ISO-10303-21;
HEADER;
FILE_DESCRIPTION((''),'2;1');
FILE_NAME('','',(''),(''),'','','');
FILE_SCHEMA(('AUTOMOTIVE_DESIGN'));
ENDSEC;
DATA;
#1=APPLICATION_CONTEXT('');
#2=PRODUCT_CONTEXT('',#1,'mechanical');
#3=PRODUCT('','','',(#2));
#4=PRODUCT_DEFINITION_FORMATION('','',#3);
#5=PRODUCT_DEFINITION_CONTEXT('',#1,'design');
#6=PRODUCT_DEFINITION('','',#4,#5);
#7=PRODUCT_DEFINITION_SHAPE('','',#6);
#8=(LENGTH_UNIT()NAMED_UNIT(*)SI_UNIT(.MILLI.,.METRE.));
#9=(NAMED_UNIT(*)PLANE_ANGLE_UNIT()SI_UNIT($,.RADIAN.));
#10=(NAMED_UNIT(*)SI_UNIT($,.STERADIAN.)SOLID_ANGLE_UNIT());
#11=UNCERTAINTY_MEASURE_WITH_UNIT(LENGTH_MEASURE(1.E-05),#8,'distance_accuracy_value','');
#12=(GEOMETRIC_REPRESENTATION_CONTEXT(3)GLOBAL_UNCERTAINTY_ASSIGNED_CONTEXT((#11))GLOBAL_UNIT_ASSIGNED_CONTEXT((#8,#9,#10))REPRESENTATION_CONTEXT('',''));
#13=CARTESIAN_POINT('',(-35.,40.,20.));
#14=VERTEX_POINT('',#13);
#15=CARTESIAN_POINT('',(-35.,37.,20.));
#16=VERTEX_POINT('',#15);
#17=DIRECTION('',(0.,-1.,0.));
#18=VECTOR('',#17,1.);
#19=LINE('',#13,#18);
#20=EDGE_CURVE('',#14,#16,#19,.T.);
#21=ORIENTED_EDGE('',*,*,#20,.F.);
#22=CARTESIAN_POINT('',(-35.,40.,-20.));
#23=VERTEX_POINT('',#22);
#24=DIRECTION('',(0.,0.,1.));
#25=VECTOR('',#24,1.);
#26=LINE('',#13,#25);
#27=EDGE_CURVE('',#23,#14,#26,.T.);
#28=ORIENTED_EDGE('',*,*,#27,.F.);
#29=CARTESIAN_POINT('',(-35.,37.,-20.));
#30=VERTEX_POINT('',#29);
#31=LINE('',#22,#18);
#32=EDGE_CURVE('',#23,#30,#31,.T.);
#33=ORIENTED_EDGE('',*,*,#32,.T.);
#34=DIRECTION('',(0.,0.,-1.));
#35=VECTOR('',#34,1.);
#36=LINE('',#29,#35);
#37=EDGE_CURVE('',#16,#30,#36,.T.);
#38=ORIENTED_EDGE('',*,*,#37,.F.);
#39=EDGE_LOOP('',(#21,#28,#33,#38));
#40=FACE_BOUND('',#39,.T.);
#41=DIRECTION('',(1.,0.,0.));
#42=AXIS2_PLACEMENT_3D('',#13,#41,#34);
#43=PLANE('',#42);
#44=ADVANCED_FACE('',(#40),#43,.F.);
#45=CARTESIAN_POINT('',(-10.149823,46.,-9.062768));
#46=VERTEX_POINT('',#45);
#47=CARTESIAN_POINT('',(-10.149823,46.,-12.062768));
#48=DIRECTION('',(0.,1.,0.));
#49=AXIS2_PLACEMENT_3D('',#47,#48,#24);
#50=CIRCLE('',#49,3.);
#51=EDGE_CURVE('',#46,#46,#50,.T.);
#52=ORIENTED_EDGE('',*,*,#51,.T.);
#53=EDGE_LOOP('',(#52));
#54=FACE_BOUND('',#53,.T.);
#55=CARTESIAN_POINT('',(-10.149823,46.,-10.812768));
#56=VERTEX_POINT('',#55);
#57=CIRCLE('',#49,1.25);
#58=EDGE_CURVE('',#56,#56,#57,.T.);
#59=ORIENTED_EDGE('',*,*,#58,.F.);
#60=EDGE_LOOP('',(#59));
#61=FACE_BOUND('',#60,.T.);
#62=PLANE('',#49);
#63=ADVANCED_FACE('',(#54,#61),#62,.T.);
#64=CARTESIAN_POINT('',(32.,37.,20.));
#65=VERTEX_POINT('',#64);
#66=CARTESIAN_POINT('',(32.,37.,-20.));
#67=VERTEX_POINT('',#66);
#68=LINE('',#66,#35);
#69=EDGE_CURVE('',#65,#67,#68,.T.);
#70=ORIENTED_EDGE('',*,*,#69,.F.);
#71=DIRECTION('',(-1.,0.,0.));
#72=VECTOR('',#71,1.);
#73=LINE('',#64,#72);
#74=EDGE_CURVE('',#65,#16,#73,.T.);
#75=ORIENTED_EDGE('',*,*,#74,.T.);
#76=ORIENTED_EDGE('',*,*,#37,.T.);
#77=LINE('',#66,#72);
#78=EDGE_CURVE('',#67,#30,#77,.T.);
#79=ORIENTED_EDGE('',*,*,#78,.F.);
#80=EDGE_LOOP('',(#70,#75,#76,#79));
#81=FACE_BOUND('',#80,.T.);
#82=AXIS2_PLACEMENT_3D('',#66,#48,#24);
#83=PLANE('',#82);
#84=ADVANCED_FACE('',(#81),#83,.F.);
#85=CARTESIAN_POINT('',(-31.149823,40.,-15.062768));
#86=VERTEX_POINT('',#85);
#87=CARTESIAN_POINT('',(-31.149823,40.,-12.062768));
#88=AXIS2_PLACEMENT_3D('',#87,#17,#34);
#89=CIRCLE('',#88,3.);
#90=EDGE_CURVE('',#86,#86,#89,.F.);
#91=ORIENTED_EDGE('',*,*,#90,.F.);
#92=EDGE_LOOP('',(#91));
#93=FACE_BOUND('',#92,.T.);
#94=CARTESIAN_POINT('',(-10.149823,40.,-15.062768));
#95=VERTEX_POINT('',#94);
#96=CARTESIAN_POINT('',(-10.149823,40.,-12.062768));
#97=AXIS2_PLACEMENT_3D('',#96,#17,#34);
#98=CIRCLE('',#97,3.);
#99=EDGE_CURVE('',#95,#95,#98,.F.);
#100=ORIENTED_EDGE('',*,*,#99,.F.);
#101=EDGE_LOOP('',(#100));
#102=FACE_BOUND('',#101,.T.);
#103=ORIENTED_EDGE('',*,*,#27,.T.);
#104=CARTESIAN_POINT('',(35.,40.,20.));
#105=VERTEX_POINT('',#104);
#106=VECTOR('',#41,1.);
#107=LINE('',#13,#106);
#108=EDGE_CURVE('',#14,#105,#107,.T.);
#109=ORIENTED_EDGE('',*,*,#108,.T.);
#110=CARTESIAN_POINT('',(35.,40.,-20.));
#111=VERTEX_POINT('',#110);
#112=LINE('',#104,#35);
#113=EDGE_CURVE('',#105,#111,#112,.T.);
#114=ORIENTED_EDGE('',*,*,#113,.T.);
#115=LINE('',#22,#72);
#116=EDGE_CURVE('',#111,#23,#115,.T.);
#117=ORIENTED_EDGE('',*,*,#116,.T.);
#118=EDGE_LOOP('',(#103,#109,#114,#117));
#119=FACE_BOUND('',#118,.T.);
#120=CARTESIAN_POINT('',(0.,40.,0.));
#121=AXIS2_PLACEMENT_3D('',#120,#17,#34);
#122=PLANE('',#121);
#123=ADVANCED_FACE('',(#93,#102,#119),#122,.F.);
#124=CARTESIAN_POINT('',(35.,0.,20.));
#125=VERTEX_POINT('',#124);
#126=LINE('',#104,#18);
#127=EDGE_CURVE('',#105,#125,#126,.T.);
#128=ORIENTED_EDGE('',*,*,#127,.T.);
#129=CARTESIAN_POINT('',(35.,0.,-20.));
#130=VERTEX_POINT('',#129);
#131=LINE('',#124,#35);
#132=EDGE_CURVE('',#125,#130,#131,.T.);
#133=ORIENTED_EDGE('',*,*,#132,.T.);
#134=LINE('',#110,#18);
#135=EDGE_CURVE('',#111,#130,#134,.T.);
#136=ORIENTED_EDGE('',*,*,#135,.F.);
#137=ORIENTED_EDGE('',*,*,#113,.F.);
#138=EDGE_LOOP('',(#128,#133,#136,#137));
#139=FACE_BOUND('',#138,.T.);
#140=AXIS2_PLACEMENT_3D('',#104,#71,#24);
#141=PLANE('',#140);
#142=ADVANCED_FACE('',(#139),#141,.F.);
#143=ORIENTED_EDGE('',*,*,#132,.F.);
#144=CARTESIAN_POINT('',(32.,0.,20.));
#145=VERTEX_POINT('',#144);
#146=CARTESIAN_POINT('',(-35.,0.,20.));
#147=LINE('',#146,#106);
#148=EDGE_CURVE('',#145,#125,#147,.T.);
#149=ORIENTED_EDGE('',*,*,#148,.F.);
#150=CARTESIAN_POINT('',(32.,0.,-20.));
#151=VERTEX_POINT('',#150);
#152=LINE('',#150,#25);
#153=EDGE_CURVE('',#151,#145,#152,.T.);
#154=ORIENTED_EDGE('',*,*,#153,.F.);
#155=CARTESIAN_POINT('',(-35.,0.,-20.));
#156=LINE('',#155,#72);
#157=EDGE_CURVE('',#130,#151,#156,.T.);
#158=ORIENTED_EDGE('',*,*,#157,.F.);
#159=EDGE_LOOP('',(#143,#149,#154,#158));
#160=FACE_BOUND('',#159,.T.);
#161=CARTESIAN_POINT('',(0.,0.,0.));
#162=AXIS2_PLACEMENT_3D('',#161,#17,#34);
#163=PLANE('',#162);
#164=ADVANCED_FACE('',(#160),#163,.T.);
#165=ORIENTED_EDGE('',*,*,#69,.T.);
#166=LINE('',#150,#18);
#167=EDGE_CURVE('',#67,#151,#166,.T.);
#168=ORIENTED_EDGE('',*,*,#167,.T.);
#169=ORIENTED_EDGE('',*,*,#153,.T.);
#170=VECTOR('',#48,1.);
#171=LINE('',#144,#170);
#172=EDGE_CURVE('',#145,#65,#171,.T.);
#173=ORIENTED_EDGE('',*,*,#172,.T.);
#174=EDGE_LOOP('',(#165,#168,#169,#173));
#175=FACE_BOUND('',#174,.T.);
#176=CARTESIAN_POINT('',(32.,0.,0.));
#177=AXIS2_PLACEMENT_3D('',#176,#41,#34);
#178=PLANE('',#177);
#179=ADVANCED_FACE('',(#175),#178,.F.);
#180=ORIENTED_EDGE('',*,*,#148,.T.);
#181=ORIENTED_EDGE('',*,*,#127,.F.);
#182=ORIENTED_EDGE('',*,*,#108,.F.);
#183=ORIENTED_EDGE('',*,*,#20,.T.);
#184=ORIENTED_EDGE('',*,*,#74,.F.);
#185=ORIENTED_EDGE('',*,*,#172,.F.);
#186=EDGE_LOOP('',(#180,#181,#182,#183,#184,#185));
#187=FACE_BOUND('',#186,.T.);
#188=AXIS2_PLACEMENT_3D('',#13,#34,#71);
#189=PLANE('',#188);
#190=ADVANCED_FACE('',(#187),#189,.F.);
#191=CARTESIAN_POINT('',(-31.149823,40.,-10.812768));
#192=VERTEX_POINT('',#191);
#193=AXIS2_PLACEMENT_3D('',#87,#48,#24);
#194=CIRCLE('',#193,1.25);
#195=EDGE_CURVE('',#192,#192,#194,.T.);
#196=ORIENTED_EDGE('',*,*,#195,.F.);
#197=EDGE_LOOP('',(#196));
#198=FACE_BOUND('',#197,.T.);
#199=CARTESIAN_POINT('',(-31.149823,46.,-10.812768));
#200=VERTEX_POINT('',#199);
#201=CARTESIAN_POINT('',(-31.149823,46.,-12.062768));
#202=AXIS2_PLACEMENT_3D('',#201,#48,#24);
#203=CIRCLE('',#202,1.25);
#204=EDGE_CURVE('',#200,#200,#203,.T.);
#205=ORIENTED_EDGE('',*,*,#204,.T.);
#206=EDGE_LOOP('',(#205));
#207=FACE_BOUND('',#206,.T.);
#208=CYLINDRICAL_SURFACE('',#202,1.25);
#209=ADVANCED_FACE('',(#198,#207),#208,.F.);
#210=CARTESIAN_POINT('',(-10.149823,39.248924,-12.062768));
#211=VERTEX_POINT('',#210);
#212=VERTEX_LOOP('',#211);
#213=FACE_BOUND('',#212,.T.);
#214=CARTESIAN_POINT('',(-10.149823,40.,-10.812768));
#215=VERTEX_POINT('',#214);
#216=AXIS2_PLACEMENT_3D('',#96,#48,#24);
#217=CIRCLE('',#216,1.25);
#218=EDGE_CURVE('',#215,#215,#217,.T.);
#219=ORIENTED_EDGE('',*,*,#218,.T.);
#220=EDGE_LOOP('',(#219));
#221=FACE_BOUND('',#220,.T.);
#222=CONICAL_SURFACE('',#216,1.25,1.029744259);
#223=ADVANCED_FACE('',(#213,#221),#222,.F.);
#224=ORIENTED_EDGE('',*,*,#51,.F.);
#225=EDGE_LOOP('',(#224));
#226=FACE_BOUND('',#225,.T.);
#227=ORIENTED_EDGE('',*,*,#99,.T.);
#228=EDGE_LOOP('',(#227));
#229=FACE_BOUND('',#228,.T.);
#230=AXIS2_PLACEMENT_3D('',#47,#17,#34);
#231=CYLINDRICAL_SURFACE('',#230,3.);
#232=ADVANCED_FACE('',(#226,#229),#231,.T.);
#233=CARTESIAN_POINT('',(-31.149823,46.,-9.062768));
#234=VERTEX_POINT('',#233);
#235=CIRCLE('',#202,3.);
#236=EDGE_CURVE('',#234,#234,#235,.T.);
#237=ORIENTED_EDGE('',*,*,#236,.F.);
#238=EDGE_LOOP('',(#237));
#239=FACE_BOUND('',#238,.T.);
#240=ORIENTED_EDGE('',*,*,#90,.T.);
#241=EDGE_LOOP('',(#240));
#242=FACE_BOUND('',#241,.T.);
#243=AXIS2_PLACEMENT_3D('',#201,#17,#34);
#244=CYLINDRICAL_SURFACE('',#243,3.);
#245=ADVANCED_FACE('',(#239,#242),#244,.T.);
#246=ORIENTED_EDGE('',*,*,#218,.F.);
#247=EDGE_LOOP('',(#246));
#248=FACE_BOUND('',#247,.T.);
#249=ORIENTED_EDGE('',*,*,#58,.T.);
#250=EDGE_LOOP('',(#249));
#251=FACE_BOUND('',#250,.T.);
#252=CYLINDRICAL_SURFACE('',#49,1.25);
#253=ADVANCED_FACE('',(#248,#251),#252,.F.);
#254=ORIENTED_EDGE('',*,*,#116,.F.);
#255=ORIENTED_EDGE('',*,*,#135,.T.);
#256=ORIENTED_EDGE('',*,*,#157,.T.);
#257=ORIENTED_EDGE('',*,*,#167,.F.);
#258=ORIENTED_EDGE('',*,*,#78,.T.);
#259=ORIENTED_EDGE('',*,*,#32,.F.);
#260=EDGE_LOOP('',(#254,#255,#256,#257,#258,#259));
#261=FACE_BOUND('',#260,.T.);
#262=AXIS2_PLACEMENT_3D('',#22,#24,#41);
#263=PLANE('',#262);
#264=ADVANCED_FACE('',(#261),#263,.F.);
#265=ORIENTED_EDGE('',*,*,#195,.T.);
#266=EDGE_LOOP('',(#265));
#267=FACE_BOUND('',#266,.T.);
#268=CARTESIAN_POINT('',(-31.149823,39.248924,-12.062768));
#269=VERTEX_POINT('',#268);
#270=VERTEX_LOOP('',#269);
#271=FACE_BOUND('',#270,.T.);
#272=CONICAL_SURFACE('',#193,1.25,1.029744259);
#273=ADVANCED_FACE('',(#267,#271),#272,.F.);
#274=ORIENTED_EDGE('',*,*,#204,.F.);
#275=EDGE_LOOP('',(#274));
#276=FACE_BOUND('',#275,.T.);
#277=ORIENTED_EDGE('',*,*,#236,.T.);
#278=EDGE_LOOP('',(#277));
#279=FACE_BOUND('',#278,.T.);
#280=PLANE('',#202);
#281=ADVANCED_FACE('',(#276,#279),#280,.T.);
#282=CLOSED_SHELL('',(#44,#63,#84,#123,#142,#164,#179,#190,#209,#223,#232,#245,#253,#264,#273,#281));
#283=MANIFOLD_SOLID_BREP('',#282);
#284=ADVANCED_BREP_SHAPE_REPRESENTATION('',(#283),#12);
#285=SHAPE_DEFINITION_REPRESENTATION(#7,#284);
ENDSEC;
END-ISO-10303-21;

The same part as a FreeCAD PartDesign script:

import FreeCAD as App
import Part
import Sketcher

doc = App.newDocument("Part")
body = doc.addObject("PartDesign::Body", "Body")

# Sketch on XZ plane
sketch1 = body.newObject("Sketcher::SketchObject", "Sketch")
sketch1.AttachmentSupport = (doc.getObject("XZ_Plane"), [""])
sketch1.MapMode = "FlatFace"
sketch1.addGeometry([
    Part.LineSegment(App.Vector(-35, -20, 0), App.Vector(-35, 20, 0)),
    Part.LineSegment(App.Vector(-35, 20, 0), App.Vector(35, 20, 0)),
    Part.LineSegment(App.Vector(35, 20, 0), App.Vector(35, -20, 0)),
    Part.LineSegment(App.Vector(35, -20, 0), App.Vector(-35, -20, 0)),
], False)
sketch1.addConstraint([
    Sketcher.Constraint("Coincident", 0, 2, 1, 1),
    Sketcher.Constraint("Coincident", 1, 2, 2, 1),
    Sketcher.Constraint("Coincident", 2, 2, 3, 1),
    Sketcher.Constraint("Coincident", 3, 2, 0, 1),
    Sketcher.Constraint("Vertical", 0),
    Sketcher.Constraint("Horizontal", 1),
    Sketcher.Constraint("Vertical", 2),
    Sketcher.Constraint("Horizontal", 3),
    Sketcher.Constraint("Symmetric", 0, 2, 2, 2, -1, 1),
    Sketcher.Constraint("DistanceX", 1, 1, 1, 2, 70.0),
    Sketcher.Constraint("DistanceY", 0, 1, 0, 2, 40.0),
])
pad1 = body.newObject("PartDesign::Pad", "Pad")
pad1.Profile = sketch1
pad1.Length = 40
pad1.Reversed = True

# Sketch on YZ plane
sketch2 = body.newObject("Sketcher::SketchObject", "Sketch001")
sketch2.AttachmentSupport = (doc.getObject("YZ_Plane"), [""])
sketch2.MapMode = "FlatFace"
sketch2.AttachmentOffset = App.Placement(App.Vector(0, 0, -35), App.Rotation())
sketch2.addGeometry([
    Part.LineSegment(App.Vector(37, -20, 0), App.Vector(0, -20, 0)),
    Part.LineSegment(App.Vector(0, -20, 0), App.Vector(0, 20, 0)),
    Part.LineSegment(App.Vector(0, 20, 0), App.Vector(37, 20, 0)),
    Part.LineSegment(App.Vector(37, 20, 0), App.Vector(37, -20, 0)),
], False)
sketch2.addConstraint([
    Sketcher.Constraint("Coincident", 0, 2, 1, 1),
    Sketcher.Constraint("Coincident", 1, 2, 2, 1),
    Sketcher.Constraint("Coincident", 2, 2, 3, 1),
    Sketcher.Constraint("Coincident", 3, 2, 0, 1),
    Sketcher.Constraint("Horizontal", 0),
    Sketcher.Constraint("Vertical", 1),
    Sketcher.Constraint("Horizontal", 2),
    Sketcher.Constraint("Vertical", 3),
    Sketcher.Constraint("Symmetric", 0, 2, 1, 2, -1, 1),
    Sketcher.Constraint("DistanceX", 0, 2, 0, 1, 37.0),
    Sketcher.Constraint("DistanceY", 1, 1, 1, 2, 40.0),
])
pocket1 = body.newObject("PartDesign::Pocket", "Pocket")
pocket1.Profile = sketch2
pocket1.Length = 67
pocket1.Reversed = True

# Sketch on XZ plane
sketch3 = body.newObject("Sketcher::SketchObject", "Sketch002")
sketch3.AttachmentSupport = (doc.getObject("XZ_Plane"), [""])
sketch3.MapMode = "FlatFace"
sketch3.AttachmentOffset = App.Placement(App.Vector(0, 0, -40), App.Rotation())
sketch3.addGeometry([
    Part.Circle(App.Vector(-31.149823, -12.062768, 0), App.Vector(0, 0, 1), 3),
    Part.Circle(App.Vector(-10.149823, -12.062768, 0), App.Vector(0, 0, 1), 3),
], False)
sketch3.addConstraint([
    Sketcher.Constraint("Equal", 0, 1),
    Sketcher.Constraint("Horizontal", 0, 3, 1, 3),
    Sketcher.Constraint("Diameter", 0, 6.0),
    Sketcher.Constraint("DistanceX", 0, 3, 1, 3, 21.0),
    Sketcher.Constraint("DistanceX", 0, 3, -1, 1, 31.149823),
    Sketcher.Constraint("DistanceY", 0, 3, -1, 1, 12.062768),
])
pad2 = body.newObject("PartDesign::Pad", "Pad001")
pad2.Profile = sketch3
pad2.Length = 6
pad2.Reversed = True

# Sketch on XZ plane
sketch4 = body.newObject("Sketcher::SketchObject", "Sketch003")
sketch4.AttachmentSupport = (doc.getObject("XZ_Plane"), [""])
sketch4.MapMode = "FlatFace"
sketch4.AttachmentOffset = App.Placement(App.Vector(0, 0, -46), App.Rotation())
sketch4.addGeometry([
    Part.Circle(App.Vector(-31.149823, -12.062768, 0), App.Vector(0, 0, 1), 1.25),
    Part.Circle(App.Vector(-10.149823, -12.062768, 0), App.Vector(0, 0, 1), 1.25),
], False)
sketch4.addConstraint([
    Sketcher.Constraint("Equal", 0, 1),
    Sketcher.Constraint("Horizontal", 0, 3, 1, 3),
    Sketcher.Constraint("Diameter", 0, 2.5),
    Sketcher.Constraint("DistanceX", 0, 3, 1, 3, 21.0),
    Sketcher.Constraint("DistanceX", 0, 3, -1, 1, 31.149823),
    Sketcher.Constraint("DistanceY", 0, 3, -1, 1, 12.062768),
])
doc.recompute()
hole = body.newObject("PartDesign::Hole", "Hole")
hole.Profile = sketch4
hole.ThreadType = "None"
hole.Diameter = 2.5
hole.DepthType = "Dimension"
hole.Depth = 6
hole.DrillPoint = "Angled"
hole.DrillPointAngle = 118
hole.Reversed = True

doc.recompute()
